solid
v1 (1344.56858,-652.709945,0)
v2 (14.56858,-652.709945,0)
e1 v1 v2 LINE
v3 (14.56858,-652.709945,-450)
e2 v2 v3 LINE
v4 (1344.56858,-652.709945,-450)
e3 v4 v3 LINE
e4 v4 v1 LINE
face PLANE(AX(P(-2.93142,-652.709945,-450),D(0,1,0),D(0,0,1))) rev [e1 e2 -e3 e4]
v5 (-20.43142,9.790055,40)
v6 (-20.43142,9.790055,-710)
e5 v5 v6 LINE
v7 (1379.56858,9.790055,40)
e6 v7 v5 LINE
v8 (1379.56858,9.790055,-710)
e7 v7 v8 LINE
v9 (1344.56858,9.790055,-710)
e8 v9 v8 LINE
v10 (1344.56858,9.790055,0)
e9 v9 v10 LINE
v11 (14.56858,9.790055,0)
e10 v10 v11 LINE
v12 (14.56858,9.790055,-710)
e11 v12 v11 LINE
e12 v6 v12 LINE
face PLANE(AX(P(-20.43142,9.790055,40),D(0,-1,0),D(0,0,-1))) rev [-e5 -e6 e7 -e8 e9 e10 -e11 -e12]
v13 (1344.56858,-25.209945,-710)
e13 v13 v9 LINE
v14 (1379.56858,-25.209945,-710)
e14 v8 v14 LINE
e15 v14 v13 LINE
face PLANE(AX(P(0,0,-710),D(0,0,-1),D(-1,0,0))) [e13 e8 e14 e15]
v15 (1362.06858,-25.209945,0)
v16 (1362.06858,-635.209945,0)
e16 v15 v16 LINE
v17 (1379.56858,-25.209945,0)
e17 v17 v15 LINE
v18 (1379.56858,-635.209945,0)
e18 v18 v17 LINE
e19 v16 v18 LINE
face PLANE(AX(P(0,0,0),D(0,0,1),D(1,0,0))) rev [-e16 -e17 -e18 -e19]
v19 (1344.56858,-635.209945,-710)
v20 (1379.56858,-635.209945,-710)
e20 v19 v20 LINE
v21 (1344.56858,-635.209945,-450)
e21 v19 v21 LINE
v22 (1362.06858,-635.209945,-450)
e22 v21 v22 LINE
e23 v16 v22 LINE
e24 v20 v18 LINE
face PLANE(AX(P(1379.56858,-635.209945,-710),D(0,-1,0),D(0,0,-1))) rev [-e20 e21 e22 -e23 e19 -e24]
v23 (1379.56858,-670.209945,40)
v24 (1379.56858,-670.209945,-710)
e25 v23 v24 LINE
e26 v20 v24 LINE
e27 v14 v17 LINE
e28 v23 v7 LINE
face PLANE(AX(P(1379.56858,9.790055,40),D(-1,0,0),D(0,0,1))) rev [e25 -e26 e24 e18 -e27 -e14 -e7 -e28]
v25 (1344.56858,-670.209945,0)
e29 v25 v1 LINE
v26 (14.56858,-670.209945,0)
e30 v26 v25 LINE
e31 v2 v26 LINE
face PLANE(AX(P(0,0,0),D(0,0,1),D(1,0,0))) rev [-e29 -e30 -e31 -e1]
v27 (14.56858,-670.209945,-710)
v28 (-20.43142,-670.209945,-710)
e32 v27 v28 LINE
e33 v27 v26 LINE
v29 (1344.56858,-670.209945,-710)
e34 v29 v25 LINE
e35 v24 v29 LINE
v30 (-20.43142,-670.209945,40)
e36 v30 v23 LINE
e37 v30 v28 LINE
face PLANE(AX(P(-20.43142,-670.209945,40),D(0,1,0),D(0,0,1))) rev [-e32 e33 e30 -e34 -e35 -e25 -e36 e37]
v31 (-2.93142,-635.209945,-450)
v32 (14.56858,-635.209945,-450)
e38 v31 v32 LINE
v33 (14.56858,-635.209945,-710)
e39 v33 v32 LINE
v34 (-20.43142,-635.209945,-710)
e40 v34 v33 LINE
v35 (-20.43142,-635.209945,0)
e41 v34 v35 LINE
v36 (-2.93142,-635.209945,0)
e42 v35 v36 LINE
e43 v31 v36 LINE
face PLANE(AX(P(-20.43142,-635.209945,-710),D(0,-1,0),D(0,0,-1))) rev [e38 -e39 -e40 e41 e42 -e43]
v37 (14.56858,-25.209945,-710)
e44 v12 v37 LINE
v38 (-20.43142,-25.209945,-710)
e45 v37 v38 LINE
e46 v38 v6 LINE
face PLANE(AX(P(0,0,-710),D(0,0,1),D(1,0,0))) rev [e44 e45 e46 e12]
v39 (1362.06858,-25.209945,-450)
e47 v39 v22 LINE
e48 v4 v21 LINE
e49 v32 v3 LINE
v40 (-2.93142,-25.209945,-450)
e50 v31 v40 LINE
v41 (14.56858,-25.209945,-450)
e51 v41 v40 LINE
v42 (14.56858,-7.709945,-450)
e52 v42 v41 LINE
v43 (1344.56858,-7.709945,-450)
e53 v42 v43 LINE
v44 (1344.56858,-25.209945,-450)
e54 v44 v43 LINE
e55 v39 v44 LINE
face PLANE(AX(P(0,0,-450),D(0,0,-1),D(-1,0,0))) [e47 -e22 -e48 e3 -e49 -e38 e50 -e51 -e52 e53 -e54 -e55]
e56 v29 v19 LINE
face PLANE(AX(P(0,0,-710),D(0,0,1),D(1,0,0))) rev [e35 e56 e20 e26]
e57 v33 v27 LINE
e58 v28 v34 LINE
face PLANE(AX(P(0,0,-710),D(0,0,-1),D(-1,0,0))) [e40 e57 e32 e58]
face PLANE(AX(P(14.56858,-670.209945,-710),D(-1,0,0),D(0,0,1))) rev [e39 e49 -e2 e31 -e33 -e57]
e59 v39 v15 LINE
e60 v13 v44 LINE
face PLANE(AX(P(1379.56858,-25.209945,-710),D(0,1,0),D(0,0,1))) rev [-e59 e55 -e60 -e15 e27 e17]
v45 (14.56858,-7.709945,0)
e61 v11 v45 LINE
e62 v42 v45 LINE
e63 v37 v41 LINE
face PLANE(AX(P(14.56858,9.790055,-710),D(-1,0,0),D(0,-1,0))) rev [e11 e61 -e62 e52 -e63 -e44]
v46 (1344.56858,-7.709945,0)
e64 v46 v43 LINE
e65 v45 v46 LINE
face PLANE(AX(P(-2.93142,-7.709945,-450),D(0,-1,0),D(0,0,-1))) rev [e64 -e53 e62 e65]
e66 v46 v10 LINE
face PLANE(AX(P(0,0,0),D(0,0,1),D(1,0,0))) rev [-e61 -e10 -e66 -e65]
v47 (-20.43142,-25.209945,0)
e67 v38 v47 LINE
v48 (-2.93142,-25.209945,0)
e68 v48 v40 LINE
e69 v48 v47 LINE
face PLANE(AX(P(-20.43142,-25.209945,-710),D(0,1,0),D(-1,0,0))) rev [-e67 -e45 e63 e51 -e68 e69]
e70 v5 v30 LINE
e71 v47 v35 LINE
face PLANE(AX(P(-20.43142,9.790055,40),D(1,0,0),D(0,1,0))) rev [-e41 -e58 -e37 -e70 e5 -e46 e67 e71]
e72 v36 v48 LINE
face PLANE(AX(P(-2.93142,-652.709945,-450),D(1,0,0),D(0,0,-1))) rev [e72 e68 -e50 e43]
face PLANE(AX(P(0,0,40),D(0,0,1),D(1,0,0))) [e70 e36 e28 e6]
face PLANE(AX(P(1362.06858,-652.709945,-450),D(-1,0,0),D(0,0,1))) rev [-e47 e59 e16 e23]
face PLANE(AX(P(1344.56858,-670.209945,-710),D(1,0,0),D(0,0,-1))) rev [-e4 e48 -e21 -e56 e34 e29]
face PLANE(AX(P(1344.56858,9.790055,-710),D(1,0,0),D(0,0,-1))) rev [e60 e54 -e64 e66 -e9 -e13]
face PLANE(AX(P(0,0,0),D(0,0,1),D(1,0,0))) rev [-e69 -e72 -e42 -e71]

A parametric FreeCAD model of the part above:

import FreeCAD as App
import Part
import Sketcher
Q = App.Units.Quantity

doc = App.newDocument("Part")
body = doc.addObject("PartDesign::Body", "Body")

# Sketch on XY plane
sketch1 = body.newObject("Sketcher::SketchObject", "Sketch")
sketch1.AttachmentSupport = (doc.getObject("XY_Plane"), [""])
sketch1.MapMode = "FlatFace"
sketch1.addGeometry([
    Part.LineSegment(App.Vector(-20, 10, 0), App.Vector(-20, -670, 0)),
    Part.LineSegment(App.Vector(-20, -670, 0), App.Vector(1380, -670, 0)),
    Part.LineSegment(App.Vector(1380, -670, 0), App.Vector(1380, 10, 0)),
    Part.LineSegment(App.Vector(1380, 10, 0), App.Vector(-20, 10, 0)),
], False)
sketch1.addConstraint([
    Sketcher.Constraint("Coincident", 0, 2, 1, 1),
    Sketcher.Constraint("Coincident", 1, 2, 2, 1),
    Sketcher.Constraint("Coincident", 2, 2, 3, 1),
    Sketcher.Constraint("Coincident", 3, 2, 0, 1),
    Sketcher.Constraint("Vertical", 0),
    Sketcher.Constraint("Horizontal", 1),
    Sketcher.Constraint("Vertical", 2),
    Sketcher.Constraint("Horizontal", 3),
    Sketcher.Constraint("DistanceX", 1, 1, 1, 2, Q("1400 mm")),
    Sketcher.Constraint("DistanceY", 0, 2, 0, 1, Q("680 mm")),
    Sketcher.Constraint("DistanceX", 0, 2, -1, 1, Q("20.43142 mm")),
    Sketcher.Constraint("DistanceY", 0, 2, -1, 1, Q("670.209945 mm")),
])
pad1 = body.newObject("PartDesign::Pad", "Pad")
pad1.Profile = sketch1
pad1.Length = 40

# Sketch on XY plane
sketch2 = body.newObject("Sketcher::SketchObject", "Sketch001")
sketch2.AttachmentSupport = (doc.getObject("XY_Plane"), [""])
sketch2.MapMode = "FlatFace"
sketch2.addGeometry([
    Part.LineSegment(App.Vector(1380, 10, 0), App.Vector(1380, -25, 0)),  # 0
    Part.LineSegment(App.Vector(1380, -25, 0), App.Vector(1345, -25, 0)),  # 1
    Part.LineSegment(App.Vector(1345, -25, 0), App.Vector(1345, 10, 0)),  # 2
    Part.LineSegment(App.Vector(1345, 10, 0), App.Vector(1380, 10, 0)),  # 3
    Part.LineSegment(App.Vector(1380, -635, 0), App.Vector(1380, -670, 0)),  # 4
    Part.LineSegment(App.Vector(1380, -670, 0), App.Vector(1345, -670, 0)),  # 5
    Part.LineSegment(App.Vector(1345, -670, 0), App.Vector(1345, -635, 0)),  # 6
    Part.LineSegment(App.Vector(1345, -635, 0), App.Vector(1380, -635, 0)),  # 7
    Part.LineSegment(App.Vector(15, 10, 0), App.Vector(15, -25, 0)),  # 8
    Part.LineSegment(App.Vector(15, -25, 0), App.Vector(-20, -25, 0)),  # 9
    Part.LineSegment(App.Vector(-20, -25, 0), App.Vector(-20, 10, 0)),  # 10
    Part.LineSegment(App.Vector(-20, 10, 0), App.Vector(15, 10, 0)),  # 11
    Part.LineSegment(App.Vector(15, -635, 0), App.Vector(15, -670, 0)),  # 12
    Part.LineSegment(App.Vector(15, -670, 0), App.Vector(-20, -670, 0)),  # 13
    Part.LineSegment(App.Vector(-20, -670, 0), App.Vector(-20, -635, 0)),  # 14
    Part.LineSegment(App.Vector(-20, -635, 0), App.Vector(15, -635, 0)),  # 15
], False)
sketch2.addConstraint([
    Sketcher.Constraint("Coincident", 0, 2, 1, 1),
    Sketcher.Constraint("Coincident", 1, 2, 2, 1),
    Sketcher.Constraint("Coincident", 2, 2, 3, 1),
    Sketcher.Constraint("Coincident", 3, 2, 0, 1),
    Sketcher.Constraint("Coincident", 4, 2, 5, 1),
    Sketcher.Constraint("Coincident", 5, 2, 6, 1),
    Sketcher.Constraint("Coincident", 6, 2, 7, 1),
    Sketcher.Constraint("Coincident", 7, 2, 4, 1),
    Sketcher.Constraint("Coincident", 8, 2, 9, 1),
    Sketcher.Constraint("Coincident", 9, 2, 10, 1),
    Sketcher.Constraint("Coincident", 10, 2, 11, 1),
    Sketcher.Constraint("Coincident", 11, 2, 8, 1),
    Sketcher.Constraint("Coincident", 12, 2, 13, 1),
    Sketcher.Constraint("Coincident", 13, 2, 14, 1),
    Sketcher.Constraint("Coincident", 14, 2, 15, 1),
    Sketcher.Constraint("Coincident", 15, 2, 12, 1),
    Sketcher.Constraint("Vertical", 0),
    Sketcher.Constraint("Horizontal", 1),
    Sketcher.Constraint("Vertical", 2),
    Sketcher.Constraint("Horizontal", 3),
    Sketcher.Constraint("Vertical", 4),
    Sketcher.Constraint("Horizontal", 5),
    Sketcher.Constraint("Vertical", 6),
    Sketcher.Constraint("Horizontal", 7),
    Sketcher.Constraint("Vertical", 8),
    Sketcher.Constraint("Horizontal", 9),
    Sketcher.Constraint("Vertical", 10),
    Sketcher.Constraint("Horizontal", 11),
    Sketcher.Constraint("Vertical", 12),
    Sketcher.Constraint("Horizontal", 13),
    Sketcher.Constraint("Vertical", 14),
    Sketcher.Constraint("Horizontal", 15),
    Sketcher.Constraint("Horizontal", 1, 2, 8, 2),
    Sketcher.Constraint("Horizontal", 3, 2, 10, 2),
    Sketcher.Constraint("Horizontal", 5, 2, 12, 2),
    Sketcher.Constraint("Horizontal", 7, 2, 14, 2),
    Sketcher.Constraint("Vertical", 3, 2, 4, 2),
    Sketcher.Constraint("Vertical", 2, 2, 5, 2),
    Sketcher.Constraint("Vertical", 11, 2, 12, 2),
    Sketcher.Constraint("Vertical", 10, 2, 13, 2),
    Sketcher.Constraint("Equal", 7, 9),
    Sketcher.Constraint("Equal", 15, 0),
    Sketcher.Constraint("Equal", 2, 4),
    Sketcher.Constraint("DistanceX", 1, 2, 1, 1, Q("35 mm")),
    Sketcher.Constraint("DistanceY", 4, 2, 0, 2, Q("645 mm")),
    Sketcher.Constraint("DistanceX", 8, 2, 1, 2, Q("1330 mm")),
    Sketcher.Constraint("DistanceX", -1, 1, 0, 2, Q("1379.56858 mm")),
    Sketcher.Constraint("DistanceY", 0, 2, -1, 1, Q("25.209945 mm")),
])
pad2 = body.newObject("PartDesign::Pad", "Pad001")
pad2.Profile = sketch2
pad2.Length = 710
pad2.Reversed = True

# Sketch on XY plane
sketch3 = body.newObject("Sketcher::SketchObject", "Sketch002")
sketch3.AttachmentSupport = (doc.getObject("XY_Plane"), [""])
sketch3.MapMode = "FlatFace"
sketch3.addGeometry([
    Part.LineSegment(App.Vector(1362, -8, 0), App.Vector(1362, -653, 0)),
    Part.LineSegment(App.Vector(1362, -653, 0), App.Vector(-3, -653, 0)),
    Part.LineSegment(App.Vector(-3, -653, 0), App.Vector(-3, -8, 0)),
    Part.LineSegment(App.Vector(-3, -8, 0), App.Vector(1362, -8, 0)),
], False)
sketch3.addConstraint([
    Sketcher.Constraint("Coincident", 0, 2, 1, 1),
    Sketcher.Constraint("Coincident", 1, 2, 2, 1),
    Sketcher.Constraint("Coincident", 2, 2, 3, 1),
    Sketcher.Constraint("Coincident", 3, 2, 0, 1),
    Sketcher.Constraint("Vertical", 0),
    Sketcher.Constraint("Horizontal", 1),
    Sketcher.Constraint("Vertical", 2),
    Sketcher.Constraint("Horizontal", 3),
    Sketcher.Constraint("DistanceX", 1, 2, 1, 1, Q("1365 mm")),
    Sketcher.Constraint("DistanceY", 0, 2, 0, 1, Q("645 mm")),
    Sketcher.Constraint("DistanceX", -1, 1, 0, 2, Q("1362.06858 mm")),
    Sketcher.Constraint("DistanceY", 0, 2, -1, 1, Q("652.709945 mm")),
])
pad3 = body.newObject("PartDesign::Pad", "Pad002")
pad3.Profile = sketch3
pad3.Length = 450
pad3.Reversed = True

doc.recompute()
